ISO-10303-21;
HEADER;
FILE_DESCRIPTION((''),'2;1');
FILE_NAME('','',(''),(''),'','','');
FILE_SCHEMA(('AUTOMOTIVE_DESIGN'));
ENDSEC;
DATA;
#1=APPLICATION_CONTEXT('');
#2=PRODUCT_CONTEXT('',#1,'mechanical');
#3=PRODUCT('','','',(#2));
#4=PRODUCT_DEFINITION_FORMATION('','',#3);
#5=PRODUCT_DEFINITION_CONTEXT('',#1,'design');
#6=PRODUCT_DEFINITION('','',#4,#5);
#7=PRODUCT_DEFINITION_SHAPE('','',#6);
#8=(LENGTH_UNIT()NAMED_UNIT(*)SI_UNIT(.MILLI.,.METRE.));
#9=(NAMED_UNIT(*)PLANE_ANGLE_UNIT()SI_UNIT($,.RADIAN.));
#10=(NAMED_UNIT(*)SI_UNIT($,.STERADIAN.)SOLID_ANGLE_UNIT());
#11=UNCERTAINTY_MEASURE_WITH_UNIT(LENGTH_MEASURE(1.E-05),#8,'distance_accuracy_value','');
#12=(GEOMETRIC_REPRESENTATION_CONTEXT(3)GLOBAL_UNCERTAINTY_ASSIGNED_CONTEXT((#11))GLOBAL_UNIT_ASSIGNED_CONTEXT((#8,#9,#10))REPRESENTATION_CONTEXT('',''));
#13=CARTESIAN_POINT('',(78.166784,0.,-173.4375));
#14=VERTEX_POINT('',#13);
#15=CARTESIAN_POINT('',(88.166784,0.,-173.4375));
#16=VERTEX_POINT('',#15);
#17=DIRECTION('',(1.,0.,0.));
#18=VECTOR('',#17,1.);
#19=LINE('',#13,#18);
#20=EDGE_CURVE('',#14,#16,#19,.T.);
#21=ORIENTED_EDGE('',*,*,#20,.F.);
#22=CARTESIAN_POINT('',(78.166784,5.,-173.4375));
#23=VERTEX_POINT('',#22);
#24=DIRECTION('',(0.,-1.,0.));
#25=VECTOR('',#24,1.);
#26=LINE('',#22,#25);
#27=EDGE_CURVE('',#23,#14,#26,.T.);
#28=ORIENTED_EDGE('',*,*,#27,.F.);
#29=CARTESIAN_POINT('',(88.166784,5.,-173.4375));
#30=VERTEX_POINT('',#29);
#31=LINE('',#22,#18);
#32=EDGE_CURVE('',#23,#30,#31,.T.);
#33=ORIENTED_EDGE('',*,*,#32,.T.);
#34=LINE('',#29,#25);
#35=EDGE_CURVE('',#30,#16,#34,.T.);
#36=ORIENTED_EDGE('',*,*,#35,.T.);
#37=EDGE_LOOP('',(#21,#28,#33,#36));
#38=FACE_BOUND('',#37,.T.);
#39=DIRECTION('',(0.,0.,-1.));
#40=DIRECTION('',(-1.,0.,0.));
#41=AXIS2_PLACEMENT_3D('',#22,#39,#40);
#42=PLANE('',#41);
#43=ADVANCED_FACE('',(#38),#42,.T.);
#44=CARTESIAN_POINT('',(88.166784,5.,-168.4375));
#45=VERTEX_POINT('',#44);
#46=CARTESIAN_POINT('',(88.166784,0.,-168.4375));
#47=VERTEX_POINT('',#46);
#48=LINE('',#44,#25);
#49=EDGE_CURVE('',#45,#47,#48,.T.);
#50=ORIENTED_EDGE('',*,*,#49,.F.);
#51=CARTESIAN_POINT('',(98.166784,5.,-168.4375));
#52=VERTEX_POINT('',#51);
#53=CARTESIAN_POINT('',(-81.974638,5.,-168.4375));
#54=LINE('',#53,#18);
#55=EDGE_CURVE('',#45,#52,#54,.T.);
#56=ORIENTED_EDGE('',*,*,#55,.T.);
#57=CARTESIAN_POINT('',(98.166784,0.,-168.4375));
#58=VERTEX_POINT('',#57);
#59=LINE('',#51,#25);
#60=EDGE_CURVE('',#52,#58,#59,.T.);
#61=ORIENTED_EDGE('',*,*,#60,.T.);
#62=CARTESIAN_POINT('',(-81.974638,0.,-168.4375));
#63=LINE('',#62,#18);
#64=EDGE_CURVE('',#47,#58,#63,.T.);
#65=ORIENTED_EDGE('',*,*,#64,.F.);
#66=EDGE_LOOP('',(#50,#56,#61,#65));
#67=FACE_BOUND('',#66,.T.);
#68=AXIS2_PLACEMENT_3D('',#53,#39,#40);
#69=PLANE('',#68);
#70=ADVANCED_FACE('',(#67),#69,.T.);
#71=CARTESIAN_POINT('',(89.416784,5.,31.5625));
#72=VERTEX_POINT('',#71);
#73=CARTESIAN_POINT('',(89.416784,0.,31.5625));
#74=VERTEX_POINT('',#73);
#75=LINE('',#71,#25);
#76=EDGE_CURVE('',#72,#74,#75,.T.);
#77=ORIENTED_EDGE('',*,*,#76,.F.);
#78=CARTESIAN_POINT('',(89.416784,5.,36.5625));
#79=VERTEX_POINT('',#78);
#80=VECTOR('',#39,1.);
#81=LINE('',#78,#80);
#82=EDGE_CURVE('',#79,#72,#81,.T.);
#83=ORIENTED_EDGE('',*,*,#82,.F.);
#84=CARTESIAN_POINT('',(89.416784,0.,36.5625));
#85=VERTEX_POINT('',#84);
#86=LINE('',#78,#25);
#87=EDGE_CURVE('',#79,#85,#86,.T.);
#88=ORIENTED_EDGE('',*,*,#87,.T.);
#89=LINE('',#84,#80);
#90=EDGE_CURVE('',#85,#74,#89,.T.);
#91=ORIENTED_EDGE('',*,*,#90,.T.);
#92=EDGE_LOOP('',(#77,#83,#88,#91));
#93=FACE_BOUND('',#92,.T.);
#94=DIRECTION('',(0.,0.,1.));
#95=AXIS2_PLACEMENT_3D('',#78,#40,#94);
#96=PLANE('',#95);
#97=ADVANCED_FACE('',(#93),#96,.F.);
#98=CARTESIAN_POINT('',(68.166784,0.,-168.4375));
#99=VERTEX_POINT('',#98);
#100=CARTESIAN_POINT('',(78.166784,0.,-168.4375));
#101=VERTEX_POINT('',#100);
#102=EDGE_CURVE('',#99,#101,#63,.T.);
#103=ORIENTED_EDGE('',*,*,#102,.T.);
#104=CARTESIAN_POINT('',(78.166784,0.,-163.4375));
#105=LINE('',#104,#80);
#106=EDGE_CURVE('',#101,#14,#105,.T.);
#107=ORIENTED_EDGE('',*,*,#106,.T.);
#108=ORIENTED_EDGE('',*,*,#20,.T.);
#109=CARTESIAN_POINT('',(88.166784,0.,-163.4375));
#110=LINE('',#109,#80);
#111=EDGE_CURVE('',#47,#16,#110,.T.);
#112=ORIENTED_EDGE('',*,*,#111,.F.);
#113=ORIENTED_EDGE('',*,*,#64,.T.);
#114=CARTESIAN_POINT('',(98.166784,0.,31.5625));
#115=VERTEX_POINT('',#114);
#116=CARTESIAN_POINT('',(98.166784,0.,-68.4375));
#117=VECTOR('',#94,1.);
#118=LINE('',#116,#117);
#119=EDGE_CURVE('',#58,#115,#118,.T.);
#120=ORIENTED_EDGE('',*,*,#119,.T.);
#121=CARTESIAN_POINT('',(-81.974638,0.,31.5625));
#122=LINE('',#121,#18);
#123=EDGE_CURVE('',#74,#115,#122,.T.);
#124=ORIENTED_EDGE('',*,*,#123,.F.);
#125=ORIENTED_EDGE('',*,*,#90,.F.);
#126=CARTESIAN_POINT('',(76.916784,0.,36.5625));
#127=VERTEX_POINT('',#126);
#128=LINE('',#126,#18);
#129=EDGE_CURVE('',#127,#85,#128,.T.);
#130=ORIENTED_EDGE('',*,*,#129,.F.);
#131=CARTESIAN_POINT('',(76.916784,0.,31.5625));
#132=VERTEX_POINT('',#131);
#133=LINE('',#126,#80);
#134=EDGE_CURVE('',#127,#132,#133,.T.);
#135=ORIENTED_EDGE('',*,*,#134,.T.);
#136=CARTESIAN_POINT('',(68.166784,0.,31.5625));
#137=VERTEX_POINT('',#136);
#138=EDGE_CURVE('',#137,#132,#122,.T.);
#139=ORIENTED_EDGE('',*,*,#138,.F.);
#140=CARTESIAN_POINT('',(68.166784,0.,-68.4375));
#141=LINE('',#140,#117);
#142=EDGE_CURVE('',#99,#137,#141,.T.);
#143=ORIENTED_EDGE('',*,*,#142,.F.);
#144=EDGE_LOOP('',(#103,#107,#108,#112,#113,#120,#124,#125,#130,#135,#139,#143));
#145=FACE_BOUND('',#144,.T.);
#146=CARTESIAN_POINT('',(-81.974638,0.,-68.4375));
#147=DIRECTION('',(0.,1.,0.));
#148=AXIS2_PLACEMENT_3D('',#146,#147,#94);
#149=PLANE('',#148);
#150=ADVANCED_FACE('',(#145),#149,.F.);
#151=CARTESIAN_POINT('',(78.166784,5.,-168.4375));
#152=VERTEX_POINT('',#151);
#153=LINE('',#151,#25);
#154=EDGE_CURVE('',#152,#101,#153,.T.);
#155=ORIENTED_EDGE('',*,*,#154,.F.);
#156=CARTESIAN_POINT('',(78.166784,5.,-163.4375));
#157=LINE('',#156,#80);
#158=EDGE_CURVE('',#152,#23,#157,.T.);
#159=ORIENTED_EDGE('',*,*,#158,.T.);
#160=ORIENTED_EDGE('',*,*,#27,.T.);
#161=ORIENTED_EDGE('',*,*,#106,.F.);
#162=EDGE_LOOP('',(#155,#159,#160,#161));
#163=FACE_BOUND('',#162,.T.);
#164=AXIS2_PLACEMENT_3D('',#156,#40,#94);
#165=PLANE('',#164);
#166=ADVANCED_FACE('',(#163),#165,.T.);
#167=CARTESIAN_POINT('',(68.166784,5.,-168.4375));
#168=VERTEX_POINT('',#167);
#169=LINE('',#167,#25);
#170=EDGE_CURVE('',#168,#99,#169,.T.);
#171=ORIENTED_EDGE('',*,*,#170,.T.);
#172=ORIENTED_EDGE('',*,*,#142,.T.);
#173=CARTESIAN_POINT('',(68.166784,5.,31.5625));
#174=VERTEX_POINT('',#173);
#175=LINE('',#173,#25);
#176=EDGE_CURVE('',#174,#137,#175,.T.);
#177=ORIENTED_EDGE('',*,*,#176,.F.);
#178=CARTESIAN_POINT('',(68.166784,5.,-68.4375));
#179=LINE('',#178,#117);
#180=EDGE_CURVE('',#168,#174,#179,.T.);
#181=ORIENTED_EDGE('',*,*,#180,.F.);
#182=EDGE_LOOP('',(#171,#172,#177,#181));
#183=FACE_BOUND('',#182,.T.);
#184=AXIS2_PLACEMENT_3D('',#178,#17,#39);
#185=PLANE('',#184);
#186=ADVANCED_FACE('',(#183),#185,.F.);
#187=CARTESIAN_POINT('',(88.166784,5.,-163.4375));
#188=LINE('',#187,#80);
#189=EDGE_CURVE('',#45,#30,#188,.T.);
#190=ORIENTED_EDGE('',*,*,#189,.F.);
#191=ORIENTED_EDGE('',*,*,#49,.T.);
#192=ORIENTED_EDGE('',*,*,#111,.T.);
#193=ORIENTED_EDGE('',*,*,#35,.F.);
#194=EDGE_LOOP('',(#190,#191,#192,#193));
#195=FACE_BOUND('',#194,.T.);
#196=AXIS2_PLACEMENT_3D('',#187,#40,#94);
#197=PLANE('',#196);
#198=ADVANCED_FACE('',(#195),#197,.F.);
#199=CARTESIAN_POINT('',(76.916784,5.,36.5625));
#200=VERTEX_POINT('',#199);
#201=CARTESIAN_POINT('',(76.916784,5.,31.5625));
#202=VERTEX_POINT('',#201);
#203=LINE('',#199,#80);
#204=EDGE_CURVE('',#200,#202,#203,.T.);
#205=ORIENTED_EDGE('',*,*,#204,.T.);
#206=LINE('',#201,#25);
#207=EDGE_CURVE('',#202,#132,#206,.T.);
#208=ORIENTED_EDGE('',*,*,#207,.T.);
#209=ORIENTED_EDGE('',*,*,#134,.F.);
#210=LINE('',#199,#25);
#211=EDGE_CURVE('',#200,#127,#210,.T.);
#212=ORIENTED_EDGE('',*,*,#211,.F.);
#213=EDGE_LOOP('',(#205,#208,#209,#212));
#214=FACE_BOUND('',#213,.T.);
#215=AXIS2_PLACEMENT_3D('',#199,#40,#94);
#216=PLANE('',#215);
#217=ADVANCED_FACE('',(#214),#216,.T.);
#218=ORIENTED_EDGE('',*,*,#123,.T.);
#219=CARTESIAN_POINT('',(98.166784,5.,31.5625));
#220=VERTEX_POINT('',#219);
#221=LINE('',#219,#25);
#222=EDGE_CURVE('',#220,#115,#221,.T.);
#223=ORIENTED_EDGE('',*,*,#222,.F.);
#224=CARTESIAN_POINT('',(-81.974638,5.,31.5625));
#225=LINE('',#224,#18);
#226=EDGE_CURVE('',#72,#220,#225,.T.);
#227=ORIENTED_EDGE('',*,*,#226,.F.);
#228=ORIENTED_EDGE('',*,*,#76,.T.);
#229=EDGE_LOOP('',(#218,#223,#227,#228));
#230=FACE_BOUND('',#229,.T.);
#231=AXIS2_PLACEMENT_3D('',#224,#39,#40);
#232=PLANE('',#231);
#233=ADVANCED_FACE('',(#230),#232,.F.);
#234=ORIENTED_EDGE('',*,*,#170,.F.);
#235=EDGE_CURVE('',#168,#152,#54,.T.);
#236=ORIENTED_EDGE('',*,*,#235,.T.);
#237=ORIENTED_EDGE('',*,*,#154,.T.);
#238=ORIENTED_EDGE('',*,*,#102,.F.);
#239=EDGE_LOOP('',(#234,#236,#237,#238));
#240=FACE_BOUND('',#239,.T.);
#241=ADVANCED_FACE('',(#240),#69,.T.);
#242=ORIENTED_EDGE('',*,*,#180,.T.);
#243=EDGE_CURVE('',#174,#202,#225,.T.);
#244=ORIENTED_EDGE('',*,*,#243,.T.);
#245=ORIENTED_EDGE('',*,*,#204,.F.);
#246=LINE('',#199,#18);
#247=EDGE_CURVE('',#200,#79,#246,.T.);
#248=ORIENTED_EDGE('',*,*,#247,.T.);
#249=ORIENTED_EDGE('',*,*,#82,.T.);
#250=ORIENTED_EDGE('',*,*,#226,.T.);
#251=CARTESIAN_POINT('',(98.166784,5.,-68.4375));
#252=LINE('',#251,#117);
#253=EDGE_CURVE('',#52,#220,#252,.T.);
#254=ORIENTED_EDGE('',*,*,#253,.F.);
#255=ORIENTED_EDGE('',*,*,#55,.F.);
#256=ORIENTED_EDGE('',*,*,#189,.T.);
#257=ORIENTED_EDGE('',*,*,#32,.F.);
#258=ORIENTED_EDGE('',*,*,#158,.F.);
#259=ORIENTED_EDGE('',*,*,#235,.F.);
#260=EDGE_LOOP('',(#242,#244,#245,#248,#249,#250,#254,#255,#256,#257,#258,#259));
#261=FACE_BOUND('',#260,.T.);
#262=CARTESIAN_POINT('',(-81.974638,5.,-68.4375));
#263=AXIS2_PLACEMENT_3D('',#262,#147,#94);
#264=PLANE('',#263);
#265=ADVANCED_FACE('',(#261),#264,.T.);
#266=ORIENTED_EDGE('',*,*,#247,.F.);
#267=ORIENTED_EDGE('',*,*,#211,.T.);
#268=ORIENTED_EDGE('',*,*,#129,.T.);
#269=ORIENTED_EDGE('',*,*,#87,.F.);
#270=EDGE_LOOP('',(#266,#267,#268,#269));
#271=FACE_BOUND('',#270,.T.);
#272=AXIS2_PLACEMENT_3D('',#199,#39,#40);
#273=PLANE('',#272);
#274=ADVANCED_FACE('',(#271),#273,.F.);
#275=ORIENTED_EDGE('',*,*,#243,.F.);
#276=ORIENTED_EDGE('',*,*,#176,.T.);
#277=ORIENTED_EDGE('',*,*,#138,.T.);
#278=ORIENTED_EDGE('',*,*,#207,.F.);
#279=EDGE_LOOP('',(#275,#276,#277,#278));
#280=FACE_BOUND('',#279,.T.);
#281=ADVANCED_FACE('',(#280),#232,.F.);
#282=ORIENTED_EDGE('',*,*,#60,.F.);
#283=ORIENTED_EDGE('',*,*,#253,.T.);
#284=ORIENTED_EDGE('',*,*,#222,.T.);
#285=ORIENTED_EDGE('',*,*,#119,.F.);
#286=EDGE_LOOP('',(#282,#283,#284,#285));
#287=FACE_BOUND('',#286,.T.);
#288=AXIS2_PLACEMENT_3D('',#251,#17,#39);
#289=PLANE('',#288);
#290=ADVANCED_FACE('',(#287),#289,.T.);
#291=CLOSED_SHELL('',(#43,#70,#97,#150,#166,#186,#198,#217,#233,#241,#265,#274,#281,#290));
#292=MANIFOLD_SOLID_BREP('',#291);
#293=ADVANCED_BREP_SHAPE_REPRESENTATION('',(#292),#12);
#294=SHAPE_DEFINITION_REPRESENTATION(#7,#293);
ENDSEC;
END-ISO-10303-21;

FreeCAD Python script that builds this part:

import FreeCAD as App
import Part
import Sketcher
from FreeCAD import Vector


def add_polygon(sketch, points):
    """Adds a closed chain of lines whose ends are joined by coincident constraints."""
    first, n = sketch.GeometryCount, len(points)
    for a, b in zip(points, points[1:] + points[:1]):
        sketch.addGeometry(Part.LineSegment(App.Vector(*a, 0), App.Vector(*b, 0)), False)
    for i in range(n):
        sketch.addConstraint(Sketcher.Constraint("Coincident", first + i, 2, first + (i + 1) % n, 1))

doc = App.newDocument("Part")
body = doc.addObject("PartDesign::Body", "Body")

sketch1 = body.newObject("Sketcher::SketchObject", "Sketch")
sketch1.AttachmentSupport = (doc.getObject("XZ_Plane"), [""])
sketch1.MapMode = "FlatFace"
add_polygon(sketch1, [(77, 32), (77, 37), (89, 37), (89, 32), (98, 32), (98, -168), (88, -168), (88, -173), (78, -173), (78, -168), (68, -168), (68, 32)])
sketch1.addConstraint([
    Sketcher.Constraint("Vertical", 0),
    Sketcher.Constraint("Horizontal", 1),
    Sketcher.Constraint("Vertical", 2),
    Sketcher.Constraint("Horizontal", 3),
    Sketcher.Constraint("Vertical", 4),
    Sketcher.Constraint("Horizontal", 5),
    Sketcher.Constraint("Vertical", 6),
    Sketcher.Constraint("Horizontal", 7),
    Sketcher.Constraint("Vertical", 8),
    Sketcher.Constraint("Horizontal", 9),
    Sketcher.Constraint("Vertical", 10),
    Sketcher.Constraint("Horizontal", 11),
    Sketcher.Constraint("Horizontal", 5, 2, 8, 2),
    Sketcher.Constraint("Horizontal", 3, 2, 10, 2),
    Sketcher.Constraint("Equal", 5, 7),
    Sketcher.Constraint("Equal", 7, 9),
    Sketcher.Constraint("Equal", 3, 11),
    Sketcher.Constraint("Equal", 2, 6),
    Sketcher.Constraint("DistanceX", 5, 2, 5, 1, 10.0),
    Sketcher.Constraint("DistanceY", 0, 1, 0, 2, 5.0),
    Sketcher.Constraint("DistanceY", 4, 2, 4, 1, 200.0),
    Sketcher.Constraint("DistanceX", 1, 1, 1, 2, 12.5),
    Sketcher.Constraint("DistanceY", -1, 1, 0, 2, 36.5625),
    Sketcher.Constraint("DistanceX", -1, 1, 0, 2, 76.916784),
])
pad1 = body.newObject("PartDesign::Pad", "Pad")
pad1.Profile = sketch1
pad1.Length = 5
pad1.Reversed = True

doc.recompute()
